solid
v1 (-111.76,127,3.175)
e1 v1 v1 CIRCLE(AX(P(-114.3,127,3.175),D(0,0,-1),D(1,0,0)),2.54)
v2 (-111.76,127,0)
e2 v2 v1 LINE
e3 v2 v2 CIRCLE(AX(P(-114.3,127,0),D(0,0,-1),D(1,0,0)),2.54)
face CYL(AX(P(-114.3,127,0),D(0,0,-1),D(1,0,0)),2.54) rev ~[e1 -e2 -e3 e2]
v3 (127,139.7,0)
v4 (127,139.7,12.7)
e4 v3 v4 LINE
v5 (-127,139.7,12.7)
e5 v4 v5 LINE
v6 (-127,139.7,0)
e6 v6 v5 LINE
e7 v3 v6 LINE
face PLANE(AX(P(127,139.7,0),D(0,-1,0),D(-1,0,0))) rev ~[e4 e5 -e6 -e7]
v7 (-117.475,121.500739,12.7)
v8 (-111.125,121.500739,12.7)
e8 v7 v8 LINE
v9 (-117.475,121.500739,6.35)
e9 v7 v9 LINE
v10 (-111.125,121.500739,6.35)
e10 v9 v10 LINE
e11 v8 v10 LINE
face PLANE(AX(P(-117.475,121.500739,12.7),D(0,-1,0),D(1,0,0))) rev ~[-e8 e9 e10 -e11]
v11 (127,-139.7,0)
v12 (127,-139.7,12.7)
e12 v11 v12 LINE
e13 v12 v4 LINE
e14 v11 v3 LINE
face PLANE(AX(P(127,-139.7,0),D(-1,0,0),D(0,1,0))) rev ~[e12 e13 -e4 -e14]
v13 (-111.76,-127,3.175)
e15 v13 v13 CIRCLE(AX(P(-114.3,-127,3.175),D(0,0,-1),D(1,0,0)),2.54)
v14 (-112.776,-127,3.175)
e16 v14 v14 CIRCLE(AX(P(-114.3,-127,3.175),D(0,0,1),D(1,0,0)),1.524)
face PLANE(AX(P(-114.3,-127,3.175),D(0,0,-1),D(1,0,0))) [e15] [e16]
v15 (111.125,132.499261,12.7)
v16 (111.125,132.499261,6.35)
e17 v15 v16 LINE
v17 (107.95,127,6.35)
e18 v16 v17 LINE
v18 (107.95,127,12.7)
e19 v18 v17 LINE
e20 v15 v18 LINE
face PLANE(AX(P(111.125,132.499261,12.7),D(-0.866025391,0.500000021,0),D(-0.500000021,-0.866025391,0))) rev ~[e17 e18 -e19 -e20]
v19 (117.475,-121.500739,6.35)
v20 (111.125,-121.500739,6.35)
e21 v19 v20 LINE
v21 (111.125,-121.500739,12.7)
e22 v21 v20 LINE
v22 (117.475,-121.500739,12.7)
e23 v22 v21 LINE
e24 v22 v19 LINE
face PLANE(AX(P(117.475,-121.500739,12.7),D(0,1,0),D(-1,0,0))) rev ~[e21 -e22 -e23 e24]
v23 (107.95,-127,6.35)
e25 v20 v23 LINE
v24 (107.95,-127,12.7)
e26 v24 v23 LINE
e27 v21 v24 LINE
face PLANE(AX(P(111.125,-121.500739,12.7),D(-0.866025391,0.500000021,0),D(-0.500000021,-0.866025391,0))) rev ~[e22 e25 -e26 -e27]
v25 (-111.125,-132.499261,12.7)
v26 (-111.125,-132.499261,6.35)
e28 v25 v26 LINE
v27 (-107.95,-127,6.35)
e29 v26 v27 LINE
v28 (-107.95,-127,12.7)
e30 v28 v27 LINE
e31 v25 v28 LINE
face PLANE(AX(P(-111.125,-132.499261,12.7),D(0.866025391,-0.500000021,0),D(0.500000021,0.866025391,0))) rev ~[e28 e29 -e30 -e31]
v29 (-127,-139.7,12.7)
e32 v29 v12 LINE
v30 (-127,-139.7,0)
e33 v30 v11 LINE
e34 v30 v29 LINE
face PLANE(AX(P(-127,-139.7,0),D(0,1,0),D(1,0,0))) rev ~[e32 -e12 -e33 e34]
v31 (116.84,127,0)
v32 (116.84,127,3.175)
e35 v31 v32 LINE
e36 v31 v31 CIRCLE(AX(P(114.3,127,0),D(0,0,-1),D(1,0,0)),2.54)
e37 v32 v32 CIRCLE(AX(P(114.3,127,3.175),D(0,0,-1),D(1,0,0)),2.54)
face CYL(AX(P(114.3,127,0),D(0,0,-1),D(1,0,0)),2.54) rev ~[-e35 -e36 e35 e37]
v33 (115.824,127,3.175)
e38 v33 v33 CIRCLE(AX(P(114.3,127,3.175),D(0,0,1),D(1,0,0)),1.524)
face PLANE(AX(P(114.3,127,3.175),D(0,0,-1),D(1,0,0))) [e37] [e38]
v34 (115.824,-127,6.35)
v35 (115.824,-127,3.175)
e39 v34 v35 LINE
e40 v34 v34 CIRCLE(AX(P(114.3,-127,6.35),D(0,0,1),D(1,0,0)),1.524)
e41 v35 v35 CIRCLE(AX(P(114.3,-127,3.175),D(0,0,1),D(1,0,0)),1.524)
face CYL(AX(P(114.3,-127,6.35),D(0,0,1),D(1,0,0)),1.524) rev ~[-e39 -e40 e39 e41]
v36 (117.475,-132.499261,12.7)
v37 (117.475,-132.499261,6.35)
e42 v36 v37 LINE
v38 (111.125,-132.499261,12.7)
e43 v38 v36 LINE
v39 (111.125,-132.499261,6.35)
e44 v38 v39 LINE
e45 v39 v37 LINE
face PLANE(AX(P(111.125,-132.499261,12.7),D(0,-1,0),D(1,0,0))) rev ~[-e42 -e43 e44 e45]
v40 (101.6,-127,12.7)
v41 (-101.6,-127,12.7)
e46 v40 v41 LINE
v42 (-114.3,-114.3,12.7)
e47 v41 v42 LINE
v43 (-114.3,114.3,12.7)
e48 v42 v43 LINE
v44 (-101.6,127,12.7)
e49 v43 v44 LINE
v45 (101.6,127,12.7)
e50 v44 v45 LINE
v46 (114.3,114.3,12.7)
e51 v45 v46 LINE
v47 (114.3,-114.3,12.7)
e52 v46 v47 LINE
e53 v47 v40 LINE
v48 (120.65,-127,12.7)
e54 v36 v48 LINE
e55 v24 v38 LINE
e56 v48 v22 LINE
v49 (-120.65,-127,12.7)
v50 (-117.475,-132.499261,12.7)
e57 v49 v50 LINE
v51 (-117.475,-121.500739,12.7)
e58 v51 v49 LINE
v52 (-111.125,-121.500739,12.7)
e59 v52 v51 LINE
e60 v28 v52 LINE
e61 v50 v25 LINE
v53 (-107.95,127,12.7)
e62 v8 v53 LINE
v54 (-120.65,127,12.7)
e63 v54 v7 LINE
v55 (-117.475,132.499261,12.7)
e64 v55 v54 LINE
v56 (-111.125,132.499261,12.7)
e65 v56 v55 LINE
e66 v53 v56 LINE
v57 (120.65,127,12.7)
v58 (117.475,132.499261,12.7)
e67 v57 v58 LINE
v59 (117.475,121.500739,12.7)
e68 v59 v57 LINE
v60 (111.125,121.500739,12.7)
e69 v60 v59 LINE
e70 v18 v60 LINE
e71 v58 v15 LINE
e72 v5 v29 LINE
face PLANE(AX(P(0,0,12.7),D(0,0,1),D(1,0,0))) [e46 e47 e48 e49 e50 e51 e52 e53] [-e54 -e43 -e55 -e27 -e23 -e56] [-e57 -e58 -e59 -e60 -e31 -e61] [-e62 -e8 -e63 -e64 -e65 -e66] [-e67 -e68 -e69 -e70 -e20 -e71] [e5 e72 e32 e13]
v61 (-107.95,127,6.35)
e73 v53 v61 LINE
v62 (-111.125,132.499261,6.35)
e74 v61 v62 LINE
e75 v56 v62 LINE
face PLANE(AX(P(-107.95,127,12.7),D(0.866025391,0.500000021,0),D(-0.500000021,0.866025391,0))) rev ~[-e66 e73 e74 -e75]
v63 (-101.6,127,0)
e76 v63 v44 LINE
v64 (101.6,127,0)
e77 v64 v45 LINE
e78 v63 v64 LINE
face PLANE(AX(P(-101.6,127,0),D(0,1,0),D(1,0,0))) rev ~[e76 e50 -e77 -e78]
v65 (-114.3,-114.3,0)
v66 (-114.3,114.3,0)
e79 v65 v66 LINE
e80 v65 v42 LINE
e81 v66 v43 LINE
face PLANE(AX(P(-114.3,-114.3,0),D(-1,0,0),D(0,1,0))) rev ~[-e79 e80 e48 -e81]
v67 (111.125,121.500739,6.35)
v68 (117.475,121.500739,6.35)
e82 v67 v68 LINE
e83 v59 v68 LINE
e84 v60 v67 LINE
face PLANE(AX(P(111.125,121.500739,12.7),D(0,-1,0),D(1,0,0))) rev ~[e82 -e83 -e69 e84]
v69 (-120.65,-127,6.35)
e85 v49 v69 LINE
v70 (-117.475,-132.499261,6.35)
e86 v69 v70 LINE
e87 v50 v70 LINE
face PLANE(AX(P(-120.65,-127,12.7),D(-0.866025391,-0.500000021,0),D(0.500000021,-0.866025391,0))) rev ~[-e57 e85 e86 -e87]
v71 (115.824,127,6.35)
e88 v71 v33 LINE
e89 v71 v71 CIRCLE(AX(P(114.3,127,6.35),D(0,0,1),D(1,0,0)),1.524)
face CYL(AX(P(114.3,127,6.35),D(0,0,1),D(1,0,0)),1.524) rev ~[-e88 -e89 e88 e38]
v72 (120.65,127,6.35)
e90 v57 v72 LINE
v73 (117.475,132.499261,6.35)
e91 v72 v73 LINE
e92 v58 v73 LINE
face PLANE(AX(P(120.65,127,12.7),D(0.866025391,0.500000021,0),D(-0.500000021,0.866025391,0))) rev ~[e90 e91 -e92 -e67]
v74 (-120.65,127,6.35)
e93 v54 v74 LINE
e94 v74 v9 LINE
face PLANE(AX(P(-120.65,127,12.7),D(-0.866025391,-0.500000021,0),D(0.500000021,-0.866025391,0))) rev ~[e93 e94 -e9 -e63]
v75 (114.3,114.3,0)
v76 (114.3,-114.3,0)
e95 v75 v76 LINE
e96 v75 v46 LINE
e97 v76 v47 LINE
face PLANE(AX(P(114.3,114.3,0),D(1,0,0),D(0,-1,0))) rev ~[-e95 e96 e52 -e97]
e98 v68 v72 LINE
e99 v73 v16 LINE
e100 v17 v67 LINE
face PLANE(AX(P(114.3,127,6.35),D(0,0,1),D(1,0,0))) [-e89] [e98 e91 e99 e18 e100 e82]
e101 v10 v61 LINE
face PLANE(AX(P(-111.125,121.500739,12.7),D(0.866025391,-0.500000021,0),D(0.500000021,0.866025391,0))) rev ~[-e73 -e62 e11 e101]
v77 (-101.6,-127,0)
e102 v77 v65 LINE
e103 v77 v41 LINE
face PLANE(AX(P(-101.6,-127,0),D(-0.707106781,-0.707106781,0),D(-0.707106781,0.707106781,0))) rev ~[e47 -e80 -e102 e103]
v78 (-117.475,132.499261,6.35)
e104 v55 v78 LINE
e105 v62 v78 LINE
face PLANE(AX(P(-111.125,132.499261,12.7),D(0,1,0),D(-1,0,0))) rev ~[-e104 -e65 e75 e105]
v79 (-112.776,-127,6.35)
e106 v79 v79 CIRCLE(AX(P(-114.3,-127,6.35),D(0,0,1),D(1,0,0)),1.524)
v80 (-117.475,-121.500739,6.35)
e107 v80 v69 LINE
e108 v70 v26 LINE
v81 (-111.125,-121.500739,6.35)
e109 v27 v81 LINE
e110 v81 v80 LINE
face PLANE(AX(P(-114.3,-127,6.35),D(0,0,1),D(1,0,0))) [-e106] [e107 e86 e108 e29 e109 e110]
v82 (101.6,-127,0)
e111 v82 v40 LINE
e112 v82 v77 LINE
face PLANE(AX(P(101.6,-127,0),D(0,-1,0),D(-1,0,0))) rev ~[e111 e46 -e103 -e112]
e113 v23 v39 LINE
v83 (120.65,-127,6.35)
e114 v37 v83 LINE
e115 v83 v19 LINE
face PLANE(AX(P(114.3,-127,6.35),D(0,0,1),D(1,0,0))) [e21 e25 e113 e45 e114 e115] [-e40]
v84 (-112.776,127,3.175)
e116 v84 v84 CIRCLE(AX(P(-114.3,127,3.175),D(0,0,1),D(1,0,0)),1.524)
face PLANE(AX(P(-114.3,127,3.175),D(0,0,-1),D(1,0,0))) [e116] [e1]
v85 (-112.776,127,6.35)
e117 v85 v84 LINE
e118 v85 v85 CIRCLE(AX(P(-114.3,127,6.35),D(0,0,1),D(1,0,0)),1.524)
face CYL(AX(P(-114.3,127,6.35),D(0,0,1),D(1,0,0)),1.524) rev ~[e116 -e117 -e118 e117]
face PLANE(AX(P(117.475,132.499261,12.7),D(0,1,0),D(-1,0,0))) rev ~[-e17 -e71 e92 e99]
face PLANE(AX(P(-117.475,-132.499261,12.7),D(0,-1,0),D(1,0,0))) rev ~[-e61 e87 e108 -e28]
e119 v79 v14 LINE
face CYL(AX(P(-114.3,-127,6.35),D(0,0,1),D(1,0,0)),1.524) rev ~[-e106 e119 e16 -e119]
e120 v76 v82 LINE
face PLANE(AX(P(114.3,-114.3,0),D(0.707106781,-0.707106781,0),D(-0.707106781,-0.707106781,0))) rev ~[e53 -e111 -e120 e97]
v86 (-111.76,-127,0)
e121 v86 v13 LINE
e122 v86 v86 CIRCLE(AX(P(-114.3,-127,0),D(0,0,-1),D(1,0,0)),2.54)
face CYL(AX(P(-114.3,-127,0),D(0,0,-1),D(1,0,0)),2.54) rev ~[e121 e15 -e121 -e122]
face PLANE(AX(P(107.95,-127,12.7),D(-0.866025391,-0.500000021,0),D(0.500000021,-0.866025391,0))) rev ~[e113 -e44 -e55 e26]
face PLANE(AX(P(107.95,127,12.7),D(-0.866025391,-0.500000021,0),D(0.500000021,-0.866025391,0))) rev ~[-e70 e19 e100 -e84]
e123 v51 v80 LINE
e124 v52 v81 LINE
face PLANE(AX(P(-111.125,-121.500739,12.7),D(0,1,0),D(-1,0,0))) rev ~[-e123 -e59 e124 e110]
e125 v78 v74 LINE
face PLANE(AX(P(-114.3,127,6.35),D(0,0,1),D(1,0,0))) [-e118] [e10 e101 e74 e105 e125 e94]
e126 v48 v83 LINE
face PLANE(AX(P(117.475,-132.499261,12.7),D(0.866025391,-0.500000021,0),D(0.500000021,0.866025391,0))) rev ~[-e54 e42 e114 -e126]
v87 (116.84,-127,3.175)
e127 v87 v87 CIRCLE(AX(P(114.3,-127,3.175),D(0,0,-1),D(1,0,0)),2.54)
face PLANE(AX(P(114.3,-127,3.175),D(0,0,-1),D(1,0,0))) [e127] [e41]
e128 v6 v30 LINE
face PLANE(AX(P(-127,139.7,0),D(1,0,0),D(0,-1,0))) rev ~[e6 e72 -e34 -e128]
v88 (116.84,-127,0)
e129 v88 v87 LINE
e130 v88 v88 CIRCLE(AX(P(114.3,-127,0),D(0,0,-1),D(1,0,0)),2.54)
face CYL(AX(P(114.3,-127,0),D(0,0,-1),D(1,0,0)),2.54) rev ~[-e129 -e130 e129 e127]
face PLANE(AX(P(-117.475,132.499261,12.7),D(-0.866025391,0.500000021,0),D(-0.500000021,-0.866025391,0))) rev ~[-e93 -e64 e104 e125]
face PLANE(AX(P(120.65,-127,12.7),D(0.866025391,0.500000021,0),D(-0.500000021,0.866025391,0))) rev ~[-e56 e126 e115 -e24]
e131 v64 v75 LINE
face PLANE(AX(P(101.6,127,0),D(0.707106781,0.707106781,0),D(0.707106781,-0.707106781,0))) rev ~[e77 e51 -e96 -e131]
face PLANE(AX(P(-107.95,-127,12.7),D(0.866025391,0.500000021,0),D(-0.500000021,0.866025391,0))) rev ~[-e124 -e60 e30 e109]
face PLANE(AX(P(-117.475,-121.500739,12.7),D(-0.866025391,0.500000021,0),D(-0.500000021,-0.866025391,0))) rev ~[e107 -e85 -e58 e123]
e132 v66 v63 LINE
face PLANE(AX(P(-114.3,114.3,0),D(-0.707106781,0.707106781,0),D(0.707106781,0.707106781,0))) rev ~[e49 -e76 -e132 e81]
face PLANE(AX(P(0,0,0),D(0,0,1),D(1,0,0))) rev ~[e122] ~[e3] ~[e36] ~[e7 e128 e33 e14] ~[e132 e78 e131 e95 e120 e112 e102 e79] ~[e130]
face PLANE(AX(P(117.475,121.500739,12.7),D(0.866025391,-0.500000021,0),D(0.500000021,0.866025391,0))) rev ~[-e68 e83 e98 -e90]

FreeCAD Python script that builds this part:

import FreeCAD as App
import Part
import Sketcher
Q = App.Units.Quantity


def add_polygon(sketch, points):
    """Adds a closed chain of lines whose ends are joined by coincident constraints."""
    first, n = sketch.GeometryCount, len(points)
    for a, b in zip(points, points[1:] + points[:1]):
        sketch.addGeometry(Part.LineSegment(App.Vector(*a, 0), App.Vector(*b, 0)), False)
    for i in range(n):
        sketch.addConstraint(Sketcher.Constraint("Coincident", first + i, 2, first + (i + 1) % n, 1))

doc = App.newDocument("Part")
body = doc.addObject("PartDesign::Body", "Body")

sketch1 = body.newObject("Sketcher::SketchObject", "Sketch")
sketch1.AttachmentSupport = (doc.getObject("XY_Plane"), [""])
sketch1.MapMode = "FlatFace"
add_polygon(sketch1, [(127, 140), (-127, 140), (-127, -140), (127, -140)])
add_polygon(sketch1, [(-114, 114), (-102, 127), (102, 127), (114, 114), (114, -114), (102, -127), (-102, -127), (-114, -114)])
sketch1.addConstraint(Sketcher.Constraint("Horizontal", 0))
sketch1.addConstraint(Sketcher.Constraint("Vertical", 1))
sketch1.addConstraint(Sketcher.Constraint("Horizontal", 2))
sketch1.addConstraint(Sketcher.Constraint("Vertical", 3))
sketch1.addConstraint(Sketcher.Constraint("Horizontal", 5))
sketch1.addConstraint(Sketcher.Constraint("Vertical", 7))
sketch1.addConstraint(Sketcher.Constraint("Horizontal", 9))
sketch1.addConstraint(Sketcher.Constraint("Vertical", 11))
sketch1.addConstraint(Sketcher.Constraint("Symmetric", 0, 2, 2, 2, -1, 1))
sketch1.addConstraint(Sketcher.Constraint("Symmetric", 4, 2, 8, 2, -1, 1))
sketch1.addConstraint(Sketcher.Constraint("Symmetric", 6, 2, 10, 2, -1, 1))
sketch1.addConstraint(Sketcher.Constraint("Perpendicular", 4, 6))
sketch1.addConstraint(Sketcher.Constraint("Perpendicular", 6, 8))
sketch1.addConstraint(Sketcher.Constraint("Perpendicular", 8, 10))
sketch1.addConstraint(Sketcher.Constraint("Horizontal", 7, 2, 10, 2))
sketch1.addConstraint(Sketcher.Constraint("Vertical", 5, 2, 8, 2))
sketch1.addConstraint(Sketcher.Constraint("DistanceX", 0, 2, 0, 1, Q("10 in")))
sketch1.addConstraint(Sketcher.Constraint("DistanceX", 5, 1, 5, 2, Q("8 in")))
sketch1.addConstraint(Sketcher.Constraint("DistanceY", 1, 2, 1, 1, Q("11 in")))
sketch1.addConstraint(Sketcher.Constraint("DistanceY", 7, 2, 7, 1, Q("9 in")))
sketch1.addConstraint(Sketcher.Constraint("DistanceY", -1, 1, 4, 2, Q("5 in")))
pad1 = body.newObject("PartDesign::Pad", "Pad")
pad1.Profile = sketch1
pad1.Length = Q("0.5 in")

sketch2 = body.newObject("Sketcher::SketchObject", "Sketch001")
sketch2.AttachmentSupport = (doc.getObject("XY_Plane"), [""])
sketch2.MapMode = "FlatFace"
sketch2.AttachmentOffset = App.Placement(App.Vector(0, 0, 0.5 * 25.4), App.Rotation())
add_polygon(sketch2, [(111, -122), (108, -127), (111, -132), (117, -132), (121, -127), (117, -122)])
add_polygon(sketch2, [(-117, -132), (-111, -132), (-108, -127), (-111, -122), (-117, -122), (-121, -127)])
add_polygon(sketch2, [(-108, 127), (-111, 132), (-117, 132), (-121, 127), (-117, 122), (-111, 122)])
add_polygon(sketch2, [(121, 127), (117, 132), (111, 132), (108, 127), (111, 122), (117, 122)])
sketch2.addConstraint(Sketcher.Constraint("Horizontal", 2))
sketch2.addConstraint(Sketcher.Constraint("Horizontal", 5))
sketch2.addConstraint(Sketcher.Constraint("Horizontal", 6))
sketch2.addConstraint(Sketcher.Constraint("Horizontal", 9))
sketch2.addConstraint(Sketcher.Constraint("Horizontal", 13))
sketch2.addConstraint(Sketcher.Constraint("Horizontal", 16))
sketch2.addConstraint(Sketcher.Constraint("Horizontal", 19))
sketch2.addConstraint(Sketcher.Constraint("Horizontal", 22))
sketch2.addConstraint(Sketcher.Constraint("Symmetric", 1, 2, 12, 2, -1, 1))
sketch2.addConstraint(Sketcher.Constraint("Symmetric", 3, 2, 14, 2, -1, 1))
sketch2.addConstraint(Sketcher.Constraint("Symmetric", 4, 2, 15, 2, -1, 1))
sketch2.addConstraint(Sketcher.Constraint("Symmetric", 0, 2, 17, 2, -1, 1))
sketch2.addConstraint(Sketcher.Constraint("Symmetric", 11, 2, 18, 2, -1, 1))
sketch2.addConstraint(Sketcher.Constraint("Symmetric", 7, 2, 20, 2, -1, 1))
sketch2.addConstraint(Sketcher.Constraint("Symmetric", 8, 2, 21, 2, -1, 1))
sketch2.addConstraint(Sketcher.Constraint("Symmetric", 10, 2, 23, 2, -1, 1))
sketch2.addConstraint(Sketcher.Constraint("Symmetric", 1, 2, 6, 2, -2))
sketch2.addConstraint(Sketcher.Constraint("Symmetric", 0, 2, 7, 2, -2))
sketch2.addConstraint(Sketcher.Constraint("Symmetric", 5, 2, 8, 2, -2))
sketch2.addConstraint(Sketcher.Constraint("Symmetric", 3, 2, 10, 2, -2))
sketch2.addConstraint(Sketcher.Constraint("Parallel", 0, 3))
sketch2.addConstraint(Sketcher.Constraint("Parallel", 1, 4))
sketch2.addConstraint(Sketcher.Constraint("Parallel", 3, 7))
sketch2.addConstraint(Sketcher.Constraint("Parallel", 7, 10))
sketch2.addConstraint(Sketcher.Constraint("Parallel", 8, 11))
sketch2.addConstraint(Sketcher.Constraint("Parallel", 10, 14))
sketch2.addConstraint(Sketcher.Constraint("Parallel", 14, 17))
sketch2.addConstraint(Sketcher.Constraint("Parallel", 17, 20))
sketch2.addConstraint(Sketcher.Constraint("Parallel", 20, 23))
sketch2.addConstraint(Sketcher.Constraint("Horizontal", 0, 2, 3, 2))
sketch2.addConstraint(Sketcher.Constraint("Vertical", 2, 2, 4, 2))
sketch2.addConstraint(Sketcher.Constraint("DistanceY", 0, 2, -1, 1, Q("5 in")))
sketch2.addConstraint(Sketcher.Constraint("Angle", 0, Q("-120.000001 deg")))
sketch2.addConstraint(Sketcher.Constraint("DistanceX", 6, 2, 2, 2, Q("9 in")))
sketch2.addConstraint(Sketcher.Constraint("DistanceX", 2, 1, 2, 2, Q("0.25 in")))
sketch2.addConstraint(Sketcher.Constraint("DistanceX", 0, 2, 3, 2, Q("0.5 in")))
pocket1 = body.newObject("PartDesign::Pocket", "Pocket")
pocket1.Profile = sketch2
pocket1.Length = Q("0.25 in")

sketch3 = body.newObject("Sketcher::SketchObject", "Sketch002")
sketch3.AttachmentSupport = (doc.getObject("XY_Plane"), [""])
sketch3.MapMode = "FlatFace"
sketch3.AttachmentOffset = App.Placement(App.Vector(0, 0, 0.25 * 25.4), App.Rotation())
sketch3.addGeometry(Part.Circle(App.Vector(-114.3, 127, 0), App.Vector(0, 0, 1), 1.5), False)
sketch3.addGeometry(Part.Circle(App.Vector(114.3, 127, 0), App.Vector(0, 0, 1), 1.5), False)
sketch3.addGeometry(Part.Circle(App.Vector(114.3, -127, 0), App.Vector(0, 0, 1), 1.5), False)
sketch3.addGeometry(Part.Circle(App.Vector(-114.3, -127, 0), App.Vector(0, 0, 1), 1.5), False)
sketch3.addConstraint(Sketcher.Constraint("Equal", 0, 1))
sketch3.addConstraint(Sketcher.Constraint("Equal", 1, 2))
sketch3.addConstraint(Sketcher.Constraint("Equal", 2, 3))
sketch3.addConstraint(Sketcher.Constraint("Symmetric", 0, 3, 2, 3, -1, 1))
sketch3.addConstraint(Sketcher.Constraint("Symmetric", 1, 3, 3, 3, -1, 1))
sketch3.addConstraint(Sketcher.Constraint("Symmetric", 0, 3, 1, 3, -2))
sketch3.addConstraint(Sketcher.Constraint("Diameter", 0, Q("0.12 in")))
sketch3.addConstraint(Sketcher.Constraint("DistanceY", -1, 1, 0, 3, Q("5 in")))
sketch3.addConstraint(Sketcher.Constraint("DistanceX", 0, 3, 1, 3, Q("9 in")))
pocket2 = body.newObject("PartDesign::Pocket", "Pocket001")
pocket2.Profile = sketch3
pocket2.Type = "ThroughAll"

sketch4 = body.newObject("Sketcher::SketchObject", "Sketch003")
sketch4.AttachmentSupport = (doc.getObject("XY_Plane"), [""])
sketch4.MapMode = "FlatFace"
sketch4.addGeometry(Part.Circle(App.Vector(-114.3, -127, 0), App.Vector(0, 0, 1), 2.5), False)
sketch4.addGeometry(Part.Circle(App.Vector(114.3, -127, 0), App.Vector(0, 0, 1), 2.5), False)
sketch4.addGeometry(Part.Circle(App.Vector(-114.3, 127, 0), App.Vector(0, 0, 1), 2.5), False)
sketch4.addGeometry(Part.Circle(App.Vector(114.3, 127, 0), App.Vector(0, 0, 1), 2.5), False)
sketch4.addConstraint(Sketcher.Constraint("Equal", 0, 1))
sketch4.addConstraint(Sketcher.Constraint("Equal", 1, 2))
sketch4.addConstraint(Sketcher.Constraint("Equal", 2, 3))
sketch4.addConstraint(Sketcher.Constraint("Symmetric", 1, 3, 2, 3, -1, 1))
sketch4.addConstraint(Sketcher.Constraint("Symmetric", 0, 3, 3, 3, -1, 1))
sketch4.addConstraint(Sketcher.Constraint("Symmetric", 0, 3, 1, 3, -2))
sketch4.addConstraint(Sketcher.Constraint("Diameter", 0, Q("0.2 in")))
sketch4.addConstraint(Sketcher.Constraint("DistanceY", 0, 3, -1, 1, Q("5 in")))
sketch4.addConstraint(Sketcher.Constraint("DistanceX", 0, 3, 1, 3, Q("9 in")))
pocket3 = body.newObject("PartDesign::Pocket", "Pocket002")
pocket3.Profile = sketch4
pocket3.Length = Q("0.125 in")
pocket3.Reversed = True

doc.recompute()
